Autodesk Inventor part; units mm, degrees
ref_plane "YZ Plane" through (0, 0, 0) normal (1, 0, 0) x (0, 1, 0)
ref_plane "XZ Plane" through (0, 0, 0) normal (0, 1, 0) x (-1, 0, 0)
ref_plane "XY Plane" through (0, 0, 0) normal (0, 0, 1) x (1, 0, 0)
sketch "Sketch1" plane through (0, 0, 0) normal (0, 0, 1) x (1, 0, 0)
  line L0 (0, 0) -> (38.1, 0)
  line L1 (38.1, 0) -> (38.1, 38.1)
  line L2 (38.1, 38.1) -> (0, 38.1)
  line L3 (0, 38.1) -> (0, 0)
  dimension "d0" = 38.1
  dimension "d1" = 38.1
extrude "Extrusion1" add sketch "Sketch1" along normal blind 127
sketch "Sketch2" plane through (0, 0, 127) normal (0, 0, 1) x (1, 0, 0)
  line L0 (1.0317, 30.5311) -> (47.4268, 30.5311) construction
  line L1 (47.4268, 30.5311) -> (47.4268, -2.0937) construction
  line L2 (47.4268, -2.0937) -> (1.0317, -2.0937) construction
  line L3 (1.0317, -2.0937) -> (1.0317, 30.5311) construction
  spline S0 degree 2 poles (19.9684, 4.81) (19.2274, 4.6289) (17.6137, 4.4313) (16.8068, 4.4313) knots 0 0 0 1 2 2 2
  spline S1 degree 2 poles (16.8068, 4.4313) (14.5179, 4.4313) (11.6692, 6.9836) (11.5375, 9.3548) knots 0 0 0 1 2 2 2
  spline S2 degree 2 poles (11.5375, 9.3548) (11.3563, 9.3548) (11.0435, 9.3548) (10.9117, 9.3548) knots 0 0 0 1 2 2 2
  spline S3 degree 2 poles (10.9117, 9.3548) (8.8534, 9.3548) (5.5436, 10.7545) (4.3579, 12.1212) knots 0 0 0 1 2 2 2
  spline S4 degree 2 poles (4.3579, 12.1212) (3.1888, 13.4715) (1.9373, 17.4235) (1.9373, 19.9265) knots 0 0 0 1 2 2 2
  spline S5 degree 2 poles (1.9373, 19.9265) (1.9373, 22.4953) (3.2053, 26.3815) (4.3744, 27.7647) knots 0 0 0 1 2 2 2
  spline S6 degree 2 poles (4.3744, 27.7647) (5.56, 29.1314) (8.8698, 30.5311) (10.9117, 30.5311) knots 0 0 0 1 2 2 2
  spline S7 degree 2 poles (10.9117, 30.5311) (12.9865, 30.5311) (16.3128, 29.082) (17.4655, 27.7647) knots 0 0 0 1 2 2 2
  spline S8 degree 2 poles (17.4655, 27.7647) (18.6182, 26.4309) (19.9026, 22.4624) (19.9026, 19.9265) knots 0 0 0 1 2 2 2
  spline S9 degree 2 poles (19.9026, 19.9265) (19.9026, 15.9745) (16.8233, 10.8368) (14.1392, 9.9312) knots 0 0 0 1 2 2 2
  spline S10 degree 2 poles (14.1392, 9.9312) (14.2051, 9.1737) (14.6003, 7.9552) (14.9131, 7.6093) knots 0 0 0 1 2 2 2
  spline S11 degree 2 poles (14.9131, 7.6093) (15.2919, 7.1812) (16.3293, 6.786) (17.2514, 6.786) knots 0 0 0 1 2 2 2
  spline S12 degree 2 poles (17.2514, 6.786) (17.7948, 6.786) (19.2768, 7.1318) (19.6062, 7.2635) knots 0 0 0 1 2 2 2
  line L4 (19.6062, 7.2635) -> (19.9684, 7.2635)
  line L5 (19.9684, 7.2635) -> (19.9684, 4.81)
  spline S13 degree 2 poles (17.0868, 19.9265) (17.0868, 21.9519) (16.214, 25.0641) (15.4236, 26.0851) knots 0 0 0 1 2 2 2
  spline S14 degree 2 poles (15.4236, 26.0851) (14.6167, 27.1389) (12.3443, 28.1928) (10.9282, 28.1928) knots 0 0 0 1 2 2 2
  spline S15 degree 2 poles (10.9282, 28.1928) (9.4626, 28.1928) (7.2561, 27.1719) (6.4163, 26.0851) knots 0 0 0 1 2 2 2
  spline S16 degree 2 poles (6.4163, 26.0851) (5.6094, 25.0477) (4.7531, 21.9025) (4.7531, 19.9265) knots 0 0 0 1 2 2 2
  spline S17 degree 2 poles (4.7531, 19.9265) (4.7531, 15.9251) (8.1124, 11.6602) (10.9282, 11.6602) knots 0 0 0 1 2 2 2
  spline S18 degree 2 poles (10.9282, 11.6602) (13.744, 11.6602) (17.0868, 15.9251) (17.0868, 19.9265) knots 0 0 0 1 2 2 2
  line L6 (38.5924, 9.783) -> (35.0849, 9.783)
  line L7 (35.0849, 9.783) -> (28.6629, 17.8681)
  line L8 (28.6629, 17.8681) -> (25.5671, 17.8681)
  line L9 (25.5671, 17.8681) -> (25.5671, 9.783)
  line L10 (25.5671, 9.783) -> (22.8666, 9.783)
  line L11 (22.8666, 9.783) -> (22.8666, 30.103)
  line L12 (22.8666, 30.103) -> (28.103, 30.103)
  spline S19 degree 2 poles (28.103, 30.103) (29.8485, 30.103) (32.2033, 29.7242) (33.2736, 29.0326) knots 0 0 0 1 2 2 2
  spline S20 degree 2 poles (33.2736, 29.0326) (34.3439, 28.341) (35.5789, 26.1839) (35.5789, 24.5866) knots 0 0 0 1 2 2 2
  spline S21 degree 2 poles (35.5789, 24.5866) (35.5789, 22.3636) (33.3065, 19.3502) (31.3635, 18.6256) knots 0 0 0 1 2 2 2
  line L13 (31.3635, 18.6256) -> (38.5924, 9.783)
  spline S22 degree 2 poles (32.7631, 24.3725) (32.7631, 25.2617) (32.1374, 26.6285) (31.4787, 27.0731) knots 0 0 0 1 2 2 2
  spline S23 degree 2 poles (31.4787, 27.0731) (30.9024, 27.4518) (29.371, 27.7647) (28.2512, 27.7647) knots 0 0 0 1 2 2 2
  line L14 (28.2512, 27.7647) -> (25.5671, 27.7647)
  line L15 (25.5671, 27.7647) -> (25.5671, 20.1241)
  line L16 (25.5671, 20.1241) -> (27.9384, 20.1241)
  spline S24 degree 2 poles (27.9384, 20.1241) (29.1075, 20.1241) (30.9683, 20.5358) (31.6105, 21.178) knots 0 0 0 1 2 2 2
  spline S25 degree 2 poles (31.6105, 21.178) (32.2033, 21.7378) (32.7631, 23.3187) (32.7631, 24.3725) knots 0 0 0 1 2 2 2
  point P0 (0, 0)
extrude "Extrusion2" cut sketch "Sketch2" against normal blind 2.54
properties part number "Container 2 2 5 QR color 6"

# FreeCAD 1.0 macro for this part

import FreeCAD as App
import Part
import Sketcher
Q = App.Units.Quantity


def add_polygon(sketch, points):
    """Adds a closed chain of lines whose ends are joined by coincident constraints."""
    first, n = sketch.GeometryCount, len(points)
    for a, b in zip(points, points[1:] + points[:1]):
        sketch.addGeometry(Part.LineSegment(App.Vector(*a, 0), App.Vector(*b, 0)), False)
    for i in range(n):
        sketch.addConstraint(Sketcher.Constraint("Coincident", first + i, 2, first + (i + 1) % n, 1))

doc = App.newDocument("Part")
params = doc.addObject("Spreadsheet::Sheet", "Params")
for row, (alias, value) in enumerate([
    ("sketch1_width", "1.5 in"),
    ("pad1_length", "5 in"),
    ("sketch2_height", "0.8 in"),
    ("pocket1_length", "0.1 in"),
], start=1):
    params.set(f"A{row}", alias)
    params.set(f"B{row}", "=" + value)
    params.setAlias(f"B{row}", alias)

body = doc.addObject("PartDesign::Body", "Body")

# Sketch on XY plane
sketch1 = body.newObject("Sketcher::SketchObject", "Sketch")
sketch1.AttachmentSupport = (doc.getObject("XY_Plane"), [""])
sketch1.MapMode = "FlatFace"
add_polygon(sketch1, [(0, 38), (0, 0), (38, 0), (38, 38)])  # lines 0-3
sketch1.addConstraint([
    Sketcher.Constraint("Vertical", 0),
    Sketcher.Constraint("Horizontal", 1),
    Sketcher.Constraint("Vertical", 2),
    Sketcher.Constraint("Horizontal", 3),
    Sketcher.Constraint("Coincident", 0, 2, -1, 1),
    Sketcher.Constraint("Equal", 3, 0),
    Sketcher.Constraint("DistanceX", 1, 1, 1, 2, Q("1.5 in")),
])
sketch1.setExpression("Constraints[10]", "Params.sketch1_width")
pad1 = body.newObject("PartDesign::Pad", "Pad")
pad1.Profile = sketch1
pad1.setExpression("Length", "Params.pad1_length")

# Sketch on XY plane
sketch2 = body.newObject("Sketcher::SketchObject", "Sketch001")
sketch2.AttachmentSupport = (doc.getObject("XY_Plane"), [""])
sketch2.MapMode = "FlatFace"
sketch2.AttachmentOffset = App.Placement(App.Vector(0, 0, 5 * 25.4), App.Rotation())
sketch2.addGeometry([
    Part.BSplineCurve([App.Vector(19.9684, 4.81, 0), App.Vector(19.2274, 4.6289, 0), App.Vector(17.6137, 4.4313, 0), App.Vector(16.8068, 4.4313, 0)], [3, 1, 3], [0, 1, 2], False, 2, [1, 1, 1, 1], False),  # 0
    Part.LineSegment(App.Vector(19.9684, 4.81, 0), App.Vector(19.9684, 7.2635, 0)),  # 1
    Part.LineSegment(App.Vector(19.9684, 7.2635, 0), App.Vector(19.6062, 7.2635, 0)),  # 2
    Part.BSplineCurve([App.Vector(17.2514, 6.786, 0), App.Vector(17.7948, 6.786, 0), App.Vector(19.2768, 7.1318, 0), App.Vector(19.6062, 7.2635, 0)], [3, 1, 3], [0, 1, 2], False, 2, [1, 1, 1, 1], False),  # 3
    Part.BSplineCurve([App.Vector(14.9131, 7.6093, 0), App.Vector(15.2919, 7.1812, 0), App.Vector(16.3293, 6.786, 0), App.Vector(17.2514, 6.786, 0)], [3, 1, 3], [0, 1, 2], False, 2, [1, 1, 1, 1], False),  # 4
    Part.BSplineCurve([App.Vector(14.1392, 9.9312, 0), App.Vector(14.2051, 9.1737, 0), App.Vector(14.6003, 7.9552, 0), App.Vector(14.9131, 7.6093, 0)], [3, 1, 3], [0, 1, 2], False, 2, [1, 1, 1, 1], False),  # 5
    Part.BSplineCurve([App.Vector(19.9026, 19.9265, 0), App.Vector(19.9026, 15.9745, 0), App.Vector(16.8233, 10.8368, 0), App.Vector(14.1392, 9.9312, 0)], [3, 1, 3], [0, 1, 2], False, 2, [1, 1, 1, 1], False),  # 6
    Part.BSplineCurve([App.Vector(17.4655, 27.7647, 0), App.Vector(18.6182, 26.4309, 0), App.Vector(19.9026, 22.4624, 0), App.Vector(19.9026, 19.9265, 0)], [3, 1, 3], [0, 1, 2], False, 2, [1, 1, 1, 1], False),  # 7
    Part.BSplineCurve([App.Vector(10.9117, 30.5311, 0), App.Vector(12.9865, 30.5311, 0), App.Vector(16.3128, 29.082, 0), App.Vector(17.4655, 27.7647, 0)], [3, 1, 3], [0, 1, 2], False, 2, [1, 1, 1, 1], False),  # 8
    Part.BSplineCurve([App.Vector(4.3744, 27.7647, 0), App.Vector(5.56, 29.1314, 0), App.Vector(8.8698, 30.5311, 0), App.Vector(10.9117, 30.5311, 0)], [3, 1, 3], [0, 1, 2], False, 2, [1, 1, 1, 1], False),  # 9
    Part.BSplineCurve([App.Vector(1.9373, 19.9265, 0), App.Vector(1.9373, 22.4953, 0), App.Vector(3.2053, 26.3815, 0), App.Vector(4.3744, 27.7647, 0)], [3, 1, 3], [0, 1, 2], False, 2, [1, 1, 1, 1], False),  # 10
    Part.BSplineCurve([App.Vector(4.3579, 12.1212, 0), App.Vector(3.1888, 13.4715, 0), App.Vector(1.9373, 17.4235, 0), App.Vector(1.9373, 19.9265, 0)], [3, 1, 3], [0, 1, 2], False, 2, [1, 1, 1, 1], False),  # 11
    Part.BSplineCurve([App.Vector(10.9117, 9.3548, 0), App.Vector(8.8534, 9.3548, 0), App.Vector(5.5436, 10.7545, 0), App.Vector(4.3579, 12.1212, 0)], [3, 1, 3], [0, 1, 2], False, 2, [1, 1, 1, 1], False),  # 12
    Part.BSplineCurve([App.Vector(11.5375, 9.3548, 0), App.Vector(11.3563, 9.3548, 0), App.Vector(11.0435, 9.3548, 0), App.Vector(10.9117, 9.3548, 0)], [3, 1, 3], [0, 1, 2], False, 2, [1, 1, 1, 1], False),  # 13
    Part.BSplineCurve([App.Vector(16.8068, 4.4313, 0), App.Vector(14.5179, 4.4313, 0), App.Vector(11.6692, 6.9836, 0), App.Vector(11.5375, 9.3548, 0)], [3, 1, 3], [0, 1, 2], False, 2, [1, 1, 1, 1], False),  # 14
    Part.BSplineCurve([App.Vector(17.0868, 19.9265, 0), App.Vector(17.0868, 21.9519, 0), App.Vector(16.214, 25.0641, 0), App.Vector(15.4236, 26.0851, 0)], [3, 1, 3], [0, 1, 2], False, 2, [1, 1, 1, 1], False),  # 15
    Part.BSplineCurve([App.Vector(10.9282, 11.6602, 0), App.Vector(13.744, 11.6602, 0), App.Vector(17.0868, 15.9251, 0), App.Vector(17.0868, 19.9265, 0)], [3, 1, 3], [0, 1, 2], False, 2, [1, 1, 1, 1], False),  # 16
    Part.BSplineCurve([App.Vector(4.7531, 19.9265, 0), App.Vector(4.7531, 15.9251, 0), App.Vector(8.1124, 11.6602, 0), App.Vector(10.9282, 11.6602, 0)], [3, 1, 3], [0, 1, 2], False, 2, [1, 1, 1, 1], False),  # 17
    Part.BSplineCurve([App.Vector(6.4163, 26.0851, 0), App.Vector(5.6094, 25.0477, 0), App.Vector(4.7531, 21.9025, 0), App.Vector(4.7531, 19.9265, 0)], [3, 1, 3], [0, 1, 2], False, 2, [1, 1, 1, 1], False),  # 18
    Part.BSplineCurve([App.Vector(10.9282, 28.1928, 0), App.Vector(9.4626, 28.1928, 0), App.Vector(7.2561, 27.1719, 0), App.Vector(6.4163, 26.0851, 0)], [3, 1, 3], [0, 1, 2], False, 2, [1, 1, 1, 1], False),  # 19
    Part.BSplineCurve([App.Vector(15.4236, 26.0851, 0), App.Vector(14.6167, 27.1389, 0), App.Vector(12.3443, 28.1928, 0), App.Vector(10.9282, 28.1928, 0)], [3, 1, 3], [0, 1, 2], False, 2, [1, 1, 1, 1], False),  # 20
    Part.LineSegment(App.Vector(35.0849, 9.783, 0), App.Vector(38.5924, 9.783, 0)),  # 21
    Part.LineSegment(App.Vector(38.5924, 9.783, 0), App.Vector(31.3635, 18.6256, 0)),  # 22
    Part.BSplineCurve([App.Vector(35.5789, 24.5866, 0), App.Vector(35.5789, 22.3636, 0), App.Vector(33.3065, 19.3502, 0), App.Vector(31.3635, 18.6256, 0)], [3, 1, 3], [0, 1, 2], False, 2, [1, 1, 1, 1], False),  # 23
    Part.BSplineCurve([App.Vector(33.2736, 29.0326, 0), App.Vector(34.3439, 28.341, 0), App.Vector(35.5789, 26.1839, 0), App.Vector(35.5789, 24.5866, 0)], [3, 1, 3], [0, 1, 2], False, 2, [1, 1, 1, 1], False),  # 24
    Part.BSplineCurve([App.Vector(28.103, 30.103, 0), App.Vector(29.8485, 30.103, 0), App.Vector(32.2033, 29.7242, 0), App.Vector(33.2736, 29.0326, 0)], [3, 1, 3], [0, 1, 2], False, 2, [1, 1, 1, 1], False),  # 25
    Part.LineSegment(App.Vector(28.103, 30.103, 0), App.Vector(22.8666, 30.103, 0)),  # 26
    Part.LineSegment(App.Vector(22.8666, 30.103, 0), App.Vector(22.8666, 9.783, 0)),  # 27
    Part.LineSegment(App.Vector(22.8666, 9.783, 0), App.Vector(25.5671, 9.783, 0)),  # 28
    Part.LineSegment(App.Vector(25.5671, 9.783, 0), App.Vector(25.5671, 17.8681, 0)),  # 29
    Part.LineSegment(App.Vector(25.5671, 17.8681, 0), App.Vector(28.6629, 17.8681, 0)),  # 30
    Part.LineSegment(App.Vector(28.6629, 17.8681, 0), App.Vector(35.0849, 9.783, 0)),  # 31
    Part.BSplineCurve([App.Vector(32.7631, 24.3725, 0), App.Vector(32.7631, 25.2617, 0), App.Vector(32.1374, 26.6285, 0), App.Vector(31.4787, 27.0731, 0)], [3, 1, 3], [0, 1, 2], False, 2, [1, 1, 1, 1], False),  # 32
    Part.BSplineCurve([App.Vector(31.6105, 21.178, 0), App.Vector(32.2033, 21.7378, 0), App.Vector(32.7631, 23.3187, 0), App.Vector(32.7631, 24.3725, 0)], [3, 1, 3], [0, 1, 2], False, 2, [1, 1, 1, 1], False),  # 33
    Part.BSplineCurve([App.Vector(27.9384, 20.1241, 0), App.Vector(29.1075, 20.1241, 0), App.Vector(30.9683, 20.5358, 0), App.Vector(31.6105, 21.178, 0)], [3, 1, 3], [0, 1, 2], False, 2, [1, 1, 1, 1], False),  # 34
    Part.LineSegment(App.Vector(27.9384, 20.1241, 0), App.Vector(25.5671, 20.1241, 0)),  # 35
    Part.LineSegment(App.Vector(25.5671, 20.1241, 0), App.Vector(25.5671, 27.7647, 0)),  # 36
    Part.LineSegment(App.Vector(25.5671, 27.7647, 0), App.Vector(28.2512, 27.7647, 0)),  # 37
    Part.BSplineCurve([App.Vector(31.4787, 27.0731, 0), App.Vector(30.9024, 27.4518, 0), App.Vector(29.371, 27.7647, 0), App.Vector(28.2512, 27.7647, 0)], [3, 1, 3], [0, 1, 2], False, 2, [1, 1, 1, 1], False),  # 38
], False)
sketch2.addConstraint([
    Sketcher.Constraint("Block", 0),
    Sketcher.Constraint("Block", 3),
    Sketcher.Constraint("Block", 4),
    Sketcher.Constraint("Block", 5),
    Sketcher.Constraint("Block", 6),
    Sketcher.Constraint("Block", 7),
    Sketcher.Constraint("Block", 8),
    Sketcher.Constraint("Block", 9),
    Sketcher.Constraint("Block", 10),
    Sketcher.Constraint("Block", 11),
    Sketcher.Constraint("Block", 12),
    Sketcher.Constraint("Block", 13),
    Sketcher.Constraint("Block", 14),
    Sketcher.Constraint("Block", 15),
    Sketcher.Constraint("Block", 16),
    Sketcher.Constraint("Block", 17),
    Sketcher.Constraint("Block", 18),
    Sketcher.Constraint("Block", 19),
    Sketcher.Constraint("Block", 20),
    Sketcher.Constraint("Block", 23),
    Sketcher.Constraint("Block", 24),
    Sketcher.Constraint("Block", 25),
    Sketcher.Constraint("Block", 32),
    Sketcher.Constraint("Block", 33),
    Sketcher.Constraint("Block", 34),
    Sketcher.Constraint("Block", 38),
    Sketcher.Constraint("Coincident", 0, 1, 1, 1),
    Sketcher.Constraint("Coincident", 1, 2, 2, 1),
    Sketcher.Constraint("Coincident", 2, 2, 3, 2),
    Sketcher.Constraint("Coincident", 21, 2, 22, 1),
    Sketcher.Constraint("Coincident", 22, 2, 23, 2),
    Sketcher.Constraint("Coincident", 25, 1, 26, 1),
    Sketcher.Constraint("Coincident", 26, 2, 27, 1),
    Sketcher.Constraint("Coincident", 27, 2, 28, 1),
    Sketcher.Constraint("Coincident", 28, 2, 29, 1),
    Sketcher.Constraint("Coincident", 29, 2, 30, 1),
    Sketcher.Constraint("Coincident", 30, 2, 31, 1),
    Sketcher.Constraint("Coincident", 31, 2, 21, 1),
    Sketcher.Constraint("Coincident", 34, 1, 35, 1),
    Sketcher.Constraint("Coincident", 35, 2, 36, 1),
    Sketcher.Constraint("Coincident", 36, 2, 37, 1),
    Sketcher.Constraint("Coincident", 37, 2, 38, 2),
    Sketcher.Constraint("Vertical", 1),
    Sketcher.Constraint("Horizontal", 2),
    Sketcher.Constraint("Horizontal", 21),
    Sketcher.Constraint("Horizontal", 26),
    Sketcher.Constraint("Vertical", 27),
    Sketcher.Constraint("Horizontal", 28),
    Sketcher.Constraint("Vertical", 29),
    Sketcher.Constraint("Horizontal", 30),
    Sketcher.Constraint("Horizontal", 35),
    Sketcher.Constraint("Vertical", 36),
    Sketcher.Constraint("Horizontal", 37),
    Sketcher.Constraint("Horizontal", 21, 2, 27, 2),
    Sketcher.Constraint("Vertical", 29, 2, 35, 2),
    Sketcher.Constraint("DistanceY", 27, 2, 27, 1, Q("0.8 in")),
    Sketcher.Constraint("Angle", 31, Q("-51.5399 deg")),
    Sketcher.Constraint("DistanceX", 21, 1, 21, 2, Q("0.1381 in")),
    Sketcher.Constraint("DistanceY", 29, 1, 29, 2, Q("0.3183 in")),
    Sketcher.Constraint("DistanceX", 26, 2, 37, 2, Q("0.212 in")),
    Sketcher.Constraint("DistanceX", 28, 1, 28, 2, Q("2.7005 mm")),
    Sketcher.Constraint("DistanceX", 30, 1, 30, 2, Q("3.0958 mm")),
])
sketch2.setExpression("Constraints[55]", "Params.sketch2_height")
pocket1 = body.newObject("PartDesign::Pocket", "Pocket")
pocket1.Profile = sketch2
pocket1.setExpression("Length", "Params.pocket1_length")

doc.recompute()
